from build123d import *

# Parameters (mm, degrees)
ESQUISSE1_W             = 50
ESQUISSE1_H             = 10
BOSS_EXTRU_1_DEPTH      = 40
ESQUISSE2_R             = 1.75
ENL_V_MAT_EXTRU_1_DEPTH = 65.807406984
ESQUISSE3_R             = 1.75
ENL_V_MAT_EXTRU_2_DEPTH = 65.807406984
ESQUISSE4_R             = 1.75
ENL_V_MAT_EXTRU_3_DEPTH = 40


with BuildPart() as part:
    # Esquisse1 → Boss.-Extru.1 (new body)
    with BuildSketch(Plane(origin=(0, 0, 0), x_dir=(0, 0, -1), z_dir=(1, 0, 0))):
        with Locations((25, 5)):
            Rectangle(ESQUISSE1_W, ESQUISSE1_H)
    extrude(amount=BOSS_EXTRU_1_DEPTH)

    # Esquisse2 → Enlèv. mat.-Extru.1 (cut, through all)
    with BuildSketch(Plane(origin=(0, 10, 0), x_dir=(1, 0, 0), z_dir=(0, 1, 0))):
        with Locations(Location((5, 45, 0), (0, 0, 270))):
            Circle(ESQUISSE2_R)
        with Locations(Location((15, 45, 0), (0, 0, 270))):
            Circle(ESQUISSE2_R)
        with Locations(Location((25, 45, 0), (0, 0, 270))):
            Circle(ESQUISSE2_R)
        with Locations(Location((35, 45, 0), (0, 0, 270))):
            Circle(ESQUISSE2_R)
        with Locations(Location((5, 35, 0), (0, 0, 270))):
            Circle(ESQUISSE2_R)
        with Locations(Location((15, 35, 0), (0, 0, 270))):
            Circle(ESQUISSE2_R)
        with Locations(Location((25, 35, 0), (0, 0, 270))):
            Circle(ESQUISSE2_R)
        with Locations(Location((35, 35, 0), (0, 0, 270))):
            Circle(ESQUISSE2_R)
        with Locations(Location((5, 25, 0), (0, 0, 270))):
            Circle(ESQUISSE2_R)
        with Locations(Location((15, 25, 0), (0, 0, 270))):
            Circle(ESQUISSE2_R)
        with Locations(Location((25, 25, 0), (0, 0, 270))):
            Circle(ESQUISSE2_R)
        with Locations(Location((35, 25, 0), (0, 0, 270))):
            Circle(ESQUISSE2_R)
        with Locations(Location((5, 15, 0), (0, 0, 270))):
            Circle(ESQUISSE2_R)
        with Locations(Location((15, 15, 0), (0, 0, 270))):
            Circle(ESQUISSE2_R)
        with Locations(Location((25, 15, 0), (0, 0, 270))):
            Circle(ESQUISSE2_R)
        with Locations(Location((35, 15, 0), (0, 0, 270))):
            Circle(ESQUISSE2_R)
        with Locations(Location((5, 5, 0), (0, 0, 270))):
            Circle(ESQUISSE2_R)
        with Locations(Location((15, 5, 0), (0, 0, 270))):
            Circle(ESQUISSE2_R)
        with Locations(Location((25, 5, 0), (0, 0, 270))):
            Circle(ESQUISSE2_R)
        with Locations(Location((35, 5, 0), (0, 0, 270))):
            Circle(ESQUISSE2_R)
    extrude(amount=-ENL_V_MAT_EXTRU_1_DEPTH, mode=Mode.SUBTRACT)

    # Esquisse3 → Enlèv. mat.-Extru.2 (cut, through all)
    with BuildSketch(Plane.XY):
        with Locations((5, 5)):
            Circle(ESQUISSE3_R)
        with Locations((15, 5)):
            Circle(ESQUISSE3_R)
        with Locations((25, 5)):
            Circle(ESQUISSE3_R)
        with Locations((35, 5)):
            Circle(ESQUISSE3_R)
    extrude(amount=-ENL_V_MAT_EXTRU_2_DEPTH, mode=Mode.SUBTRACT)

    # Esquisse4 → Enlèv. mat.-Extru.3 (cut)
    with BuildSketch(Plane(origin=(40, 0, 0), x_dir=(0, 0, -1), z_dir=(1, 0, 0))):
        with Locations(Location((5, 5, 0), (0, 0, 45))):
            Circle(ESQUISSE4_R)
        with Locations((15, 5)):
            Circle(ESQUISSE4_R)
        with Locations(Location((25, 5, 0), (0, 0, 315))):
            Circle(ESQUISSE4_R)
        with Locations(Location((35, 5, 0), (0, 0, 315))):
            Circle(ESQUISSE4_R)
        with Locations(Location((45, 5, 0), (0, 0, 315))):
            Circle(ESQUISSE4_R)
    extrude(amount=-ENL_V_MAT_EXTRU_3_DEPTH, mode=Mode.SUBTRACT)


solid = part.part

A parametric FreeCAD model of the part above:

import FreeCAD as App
import Part
import Sketcher

doc = App.newDocument("Part")
params = doc.addObject("Spreadsheet::Sheet", "Params")
for row, (alias, value) in enumerate([
    ("sketch1_width", "10 mm"),
    ("sketch1_height", "50 mm"),
    ("pad1_length", "40 mm"),
    ("sketch2_diameter", "3.5 mm"),
    ("sketch3_diameter", "3.5 mm"),
    ("sketch4_diameter", "3.5 mm"),
    ("pocket3_length", "40 mm"),
], start=1):
    params.set(f"A{row}", alias)
    params.set(f"B{row}", "=" + value)
    params.setAlias(f"B{row}", alias)

body = doc.addObject("PartDesign::Body", "Body")

# Sketch on YZ plane
sketch1 = body.newObject("Sketcher::SketchObject", "Sketch")
sketch1.AttachmentSupport = (doc.getObject("YZ_Plane"), [""])
sketch1.MapMode = "FlatFace"
sketch1.addGeometry([
    Part.LineSegment(App.Vector(10, 0, 0), App.Vector(0, 0, 0)),
    Part.LineSegment(App.Vector(0, 0, 0), App.Vector(0, -50, 0)),
    Part.LineSegment(App.Vector(0, -50, 0), App.Vector(10, -50, 0)),
    Part.LineSegment(App.Vector(10, -50, 0), App.Vector(10, 0, 0)),
], False)
sketch1.addConstraint([
    Sketcher.Constraint("Coincident", 0, 2, 1, 1),
    Sketcher.Constraint("Coincident", 1, 2, 2, 1),
    Sketcher.Constraint("Coincident", 2, 2, 3, 1),
    Sketcher.Constraint("Coincident", 3, 2, 0, 1),
    Sketcher.Constraint("Horizontal", 0),
    Sketcher.Constraint("Vertical", 1),
    Sketcher.Constraint("Horizontal", 2),
    Sketcher.Constraint("Vertical", 3),
    Sketcher.Constraint("Coincident", 0, 2, -1, 1),
    Sketcher.Constraint("DistanceX", 0, 2, 0, 1, 10.0),
    Sketcher.Constraint("DistanceY", 1, 2, 1, 1, 50.0),
])
sketch1.setExpression("Constraints[9]", "Params.sketch1_width")
sketch1.setExpression("Constraints[10]", "Params.sketch1_height")
pad1 = body.newObject("PartDesign::Pad", "Pad")
pad1.Profile = sketch1
pad1.setExpression("Length", "Params.pad1_length")

# Sketch on XZ plane
sketch2 = body.newObject("Sketcher::SketchObject", "Sketch001")
sketch2.AttachmentSupport = (doc.getObject("XZ_Plane"), [""])
sketch2.MapMode = "FlatFace"
sketch2.AttachmentOffset = App.Placement(App.Vector(0, 0, -10), App.Rotation())
sketch2.addGeometry([
    Part.Circle(App.Vector(5, -45, 0), App.Vector(0, 0, 1), 1.75),  # 0
    Part.Circle(App.Vector(15, -45, 0), App.Vector(0, 0, 1), 1.75),  # 1
    Part.Circle(App.Vector(25, -45, 0), App.Vector(0, 0, 1), 1.75),  # 2
    Part.Circle(App.Vector(35, -45, 0), App.Vector(0, 0, 1), 1.75),  # 3
    Part.Circle(App.Vector(5, -35, 0), App.Vector(0, 0, 1), 1.75),  # 4
    Part.Circle(App.Vector(15, -35, 0), App.Vector(0, 0, 1), 1.75),  # 5
    Part.Circle(App.Vector(25, -35, 0), App.Vector(0, 0, 1), 1.75),  # 6
    Part.Circle(App.Vector(35, -35, 0), App.Vector(0, 0, 1), 1.75),  # 7
    Part.Circle(App.Vector(5, -25, 0), App.Vector(0, 0, 1), 1.75),  # 8
    Part.Circle(App.Vector(15, -25, 0), App.Vector(0, 0, 1), 1.75),  # 9
    Part.Circle(App.Vector(25, -25, 0), App.Vector(0, 0, 1), 1.75),  # 10
    Part.Circle(App.Vector(35, -25, 0), App.Vector(0, 0, 1), 1.75),  # 11
    Part.Circle(App.Vector(5, -15, 0), App.Vector(0, 0, 1), 1.75),  # 12
    Part.Circle(App.Vector(15, -15, 0), App.Vector(0, 0, 1), 1.75),  # 13
    Part.Circle(App.Vector(25, -15, 0), App.Vector(0, 0, 1), 1.75),  # 14
    Part.Circle(App.Vector(35, -15, 0), App.Vector(0, 0, 1), 1.75),  # 15
    Part.Circle(App.Vector(5, -5, 0), App.Vector(0, 0, 1), 1.75),  # 16
    Part.Circle(App.Vector(15, -5, 0), App.Vector(0, 0, 1), 1.75),  # 17
    Part.Circle(App.Vector(25, -5, 0), App.Vector(0, 0, 1), 1.75),  # 18
    Part.Circle(App.Vector(35, -5, 0), App.Vector(0, 0, 1), 1.75),  # 19
], False)
sketch2.addConstraint([
    Sketcher.Constraint("Equal", 0, 1),
    Sketcher.Constraint("Equal", 1, 2),
    Sketcher.Constraint("Equal", 2, 3),
    Sketcher.Constraint("Equal", 3, 4),
    Sketcher.Constraint("Equal", 4, 5),
    Sketcher.Constraint("Equal", 5, 6),
    Sketcher.Constraint("Equal", 6, 7),
    Sketcher.Constraint("Equal", 7, 8),
    Sketcher.Constraint("Equal", 8, 9),
    Sketcher.Constraint("Equal", 9, 10),
    Sketcher.Constraint("Equal", 10, 11),
    Sketcher.Constraint("Equal", 11, 12),
    Sketcher.Constraint("Equal", 12, 13),
    Sketcher.Constraint("Equal", 13, 14),
    Sketcher.Constraint("Equal", 14, 15),
    Sketcher.Constraint("Equal", 15, 16),
    Sketcher.Constraint("Equal", 16, 17),
    Sketcher.Constraint("Equal", 17, 18),
    Sketcher.Constraint("Equal", 18, 19),
    Sketcher.Constraint("Horizontal", 0, 3, 1, 3),
    Sketcher.Constraint("Horizontal", 1, 3, 2, 3),
    Sketcher.Constraint("Horizontal", 2, 3, 3, 3),
    Sketcher.Constraint("Horizontal", 4, 3, 5, 3),
    Sketcher.Constraint("Horizontal", 5, 3, 6, 3),
    Sketcher.Constraint("Horizontal", 6, 3, 7, 3),
    Sketcher.Constraint("Horizontal", 8, 3, 9, 3),
    Sketcher.Constraint("Horizontal", 9, 3, 10, 3),
    Sketcher.Constraint("Horizontal", 10, 3, 11, 3),
    Sketcher.Constraint("Horizontal", 12, 3, 13, 3),
    Sketcher.Constraint("Horizontal", 13, 3, 14, 3),
    Sketcher.Constraint("Horizontal", 14, 3, 15, 3),
    Sketcher.Constraint("Horizontal", 16, 3, 17, 3),
    Sketcher.Constraint("Horizontal", 17, 3, 18, 3),
    Sketcher.Constraint("Horizontal", 18, 3, 19, 3),
    Sketcher.Constraint("Vertical", 0, 3, 4, 3),
    Sketcher.Constraint("Vertical", 1, 3, 5, 3),
    Sketcher.Constraint("Vertical", 2, 3, 6, 3),
    Sketcher.Constraint("Vertical", 3, 3, 7, 3),
    Sketcher.Constraint("Vertical", 4, 3, 8, 3),
    Sketcher.Constraint("Vertical", 5, 3, 9, 3),
    Sketcher.Constraint("Vertical", 6, 3, 10, 3),
    Sketcher.Constraint("Vertical", 7, 3, 11, 3),
    Sketcher.Constraint("Vertical", 8, 3, 12, 3),
    Sketcher.Constraint("Vertical", 9, 3, 13, 3),
    Sketcher.Constraint("Vertical", 10, 3, 14, 3),
    Sketcher.Constraint("Vertical", 11, 3, 15, 3),
    Sketcher.Constraint("Vertical", 12, 3, 16, 3),
    Sketcher.Constraint("Vertical", 13, 3, 17, 3),
    Sketcher.Constraint("Vertical", 14, 3, 18, 3),
    Sketcher.Constraint("Vertical", 15, 3, 19, 3),
    Sketcher.Constraint("Diameter", 0, 3.5),
    Sketcher.Constraint("DistanceX", -1, 1, 0, 3, 5.0),
    Sketcher.Constraint("DistanceY", 0, 3, -1, 1, 45.0),
    Sketcher.Constraint("DistanceX", -1, 1, 1, 3, 15.0),
    Sketcher.Constraint("DistanceX", -1, 1, 2, 3, 25.0),
    Sketcher.Constraint("DistanceX", -1, 1, 3, 3, 35.0),
    Sketcher.Constraint("DistanceY", 4, 3, -1, 1, 35.0),
    Sketcher.Constraint("DistanceY", 8, 3, -1, 1, 25.0),
    Sketcher.Constraint("DistanceY", 12, 3, -1, 1, 15.0),
    Sketcher.Constraint("DistanceY", 16, 3, -1, 1, 5.0),
])
sketch2.setExpression("Constraints[50]", "Params.sketch2_diameter")
pocket1 = body.newObject("PartDesign::Pocket", "Pocket")
pocket1.Profile = sketch2
pocket1.Type = "ThroughAll"
pocket1.Reversed = True

# Sketch on XY plane
sketch3 = body.newObject("Sketcher::SketchObject", "Sketch002")
sketch3.AttachmentSupport = (doc.getObject("XY_Plane"), [""])
sketch3.MapMode = "FlatFace"
sketch3.addGeometry([
    Part.Circle(App.Vector(5, 5, 0), App.Vector(0, 0, 1), 1.75),
    Part.Circle(App.Vector(15, 5, 0), App.Vector(0, 0, 1), 1.75),
    Part.Circle(App.Vector(25, 5, 0), App.Vector(0, 0, 1), 1.75),
    Part.Circle(App.Vector(35, 5, 0), App.Vector(0, 0, 1), 1.75),
], False)
sketch3.addConstraint([
    Sketcher.Constraint("Equal", 0, 1),
    Sketcher.Constraint("Equal", 1, 2),
    Sketcher.Constraint("Equal", 2, 3),
    Sketcher.Constraint("Horizontal", 0, 3, 1, 3),
    Sketcher.Constraint("Horizontal", 1, 3, 2, 3),
    Sketcher.Constraint("Horizontal", 2, 3, 3, 3),
    Sketcher.Constraint("Diameter", 0, 3.5),
    Sketcher.Constraint("DistanceX", -1, 1, 0, 3, 5.0),
    Sketcher.Constraint("DistanceY", -1, 1, 0, 3, 5.0),
    Sketcher.Constraint("DistanceX", -1, 1, 1, 3, 15.0),
    Sketcher.Constraint("DistanceX", -1, 1, 2, 3, 25.0),
    Sketcher.Constraint("DistanceX", -1, 1, 3, 3, 35.0),
])
sketch3.setExpression("Constraints[6]", "Params.sketch3_diameter")
pocket2 = body.newObject("PartDesign::Pocket", "Pocket001")
pocket2.Profile = sketch3
pocket2.Type = "ThroughAll"

# Sketch on YZ plane
sketch4 = body.newObject("Sketcher::SketchObject", "Sketch003")
sketch4.AttachmentSupport = (doc.getObject("YZ_Plane"), [""])
sketch4.MapMode = "FlatFace"
sketch4.AttachmentOffset = App.Placement(App.Vector(0, 0, 40), App.Rotation())
sketch4.addGeometry([
    Part.Circle(App.Vector(5, -5, 0), App.Vector(0, 0, 1), 1.75),  # 0
    Part.Circle(App.Vector(5, -15, 0), App.Vector(0, 0, 1), 1.75),  # 1
    Part.Circle(App.Vector(5, -25, 0), App.Vector(0, 0, 1), 1.75),  # 2
    Part.Circle(App.Vector(5, -35, 0), App.Vector(0, 0, 1), 1.75),  # 3
    Part.Circle(App.Vector(5, -45, 0), App.Vector(0, 0, 1), 1.75),  # 4
], False)
sketch4.addConstraint([
    Sketcher.Constraint("Equal", 0, 1),
    Sketcher.Constraint("Equal", 1, 2),
    Sketcher.Constraint("Equal", 2, 3),
    Sketcher.Constraint("Equal", 3, 4),
    Sketcher.Constraint("Vertical", 0, 3, 1, 3),
    Sketcher.Constraint("Vertical", 1, 3, 2, 3),
    Sketcher.Constraint("Vertical", 2, 3, 3, 3),
    Sketcher.Constraint("Vertical", 3, 3, 4, 3),
    Sketcher.Constraint("Diameter", 0, 3.5),
    Sketcher.Constraint("DistanceX", -1, 1, 0, 3, 5.0),
    Sketcher.Constraint("DistanceY", 0, 3, -1, 1, 5.0),
    Sketcher.Constraint("DistanceY", 1, 3, -1, 1, 15.0),
    Sketcher.Constraint("DistanceY", 2, 3, -1, 1, 25.0),
    Sketcher.Constraint("DistanceY", 3, 3, -1, 1, 35.0),
    Sketcher.Constraint("DistanceY", 4, 3, -1, 1, 45.0),
])
sketch4.setExpression("Constraints[8]", "Params.sketch4_diameter")
pocket3 = body.newObject("PartDesign::Pocket", "Pocket002")
pocket3.Profile = sketch4
pocket3.setExpression("Length", "Params.pocket3_length")

doc.recompute()
